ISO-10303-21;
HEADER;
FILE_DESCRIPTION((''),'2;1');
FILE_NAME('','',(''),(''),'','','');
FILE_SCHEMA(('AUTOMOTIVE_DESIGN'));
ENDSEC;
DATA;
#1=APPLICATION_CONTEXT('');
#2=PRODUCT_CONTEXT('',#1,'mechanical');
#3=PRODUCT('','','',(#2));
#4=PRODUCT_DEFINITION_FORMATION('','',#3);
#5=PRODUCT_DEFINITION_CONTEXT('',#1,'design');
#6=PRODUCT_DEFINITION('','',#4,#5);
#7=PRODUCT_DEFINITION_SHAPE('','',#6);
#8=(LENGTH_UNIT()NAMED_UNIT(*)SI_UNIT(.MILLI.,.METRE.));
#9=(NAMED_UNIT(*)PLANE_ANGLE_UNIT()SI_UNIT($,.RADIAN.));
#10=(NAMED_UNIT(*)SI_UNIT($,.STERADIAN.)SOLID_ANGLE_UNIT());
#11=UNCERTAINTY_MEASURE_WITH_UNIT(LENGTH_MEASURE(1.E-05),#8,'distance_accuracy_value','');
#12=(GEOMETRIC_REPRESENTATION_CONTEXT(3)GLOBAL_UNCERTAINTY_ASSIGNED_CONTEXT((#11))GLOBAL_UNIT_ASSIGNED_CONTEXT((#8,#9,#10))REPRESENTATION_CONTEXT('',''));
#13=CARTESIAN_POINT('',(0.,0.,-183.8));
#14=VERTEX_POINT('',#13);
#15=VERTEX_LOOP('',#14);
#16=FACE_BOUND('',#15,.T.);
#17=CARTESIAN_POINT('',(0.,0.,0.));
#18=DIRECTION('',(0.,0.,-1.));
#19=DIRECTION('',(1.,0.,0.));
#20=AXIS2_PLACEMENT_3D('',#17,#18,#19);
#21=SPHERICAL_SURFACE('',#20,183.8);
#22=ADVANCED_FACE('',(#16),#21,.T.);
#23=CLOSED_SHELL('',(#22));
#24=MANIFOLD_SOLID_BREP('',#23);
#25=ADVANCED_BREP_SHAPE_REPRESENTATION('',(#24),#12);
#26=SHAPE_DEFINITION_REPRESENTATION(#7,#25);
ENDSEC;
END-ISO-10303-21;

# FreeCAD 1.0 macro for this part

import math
import FreeCAD as App
import Part
import Sketcher
from FreeCAD import Vector

doc = App.newDocument("Part")
body = doc.addObject("PartDesign::Body", "Body")

# Sketch on XZ plane
sketch1 = body.newObject("Sketcher::SketchObject", "Sketch")
sketch1.AttachmentSupport = (doc.getObject("XZ_Plane"), [""])
sketch1.MapMode = "FlatFace"
sketch1.addGeometry([
    Part.LineSegment(Vector(0, -183.8, 0), Vector(0, 183.8, 0)),
    Part.ArcOfCircle(Part.Circle(Vector(0, 0, 0), Vector(0, 0, 1), 183.8), math.radians(-90), math.radians(90)),
], False)
sketch1.addConstraint([
    Sketcher.Constraint("Coincident", 0, 1, 1, 1),
    Sketcher.Constraint("Coincident", 1, 2, 0, 2),
    Sketcher.Constraint("Vertical", 0),
    Sketcher.Constraint("Coincident", 1, 3, -1, 1),
    Sketcher.Constraint("PointOnObject", 0, 1, -2),
    Sketcher.Constraint("Radius", 1, 183.8),
])
revolution = body.newObject("PartDesign::Revolution", "Revolution")
revolution.Profile = sketch1
revolution.ReferenceAxis = (sketch1, ["V_Axis"])
revolution.Angle = 360

doc.recompute()
